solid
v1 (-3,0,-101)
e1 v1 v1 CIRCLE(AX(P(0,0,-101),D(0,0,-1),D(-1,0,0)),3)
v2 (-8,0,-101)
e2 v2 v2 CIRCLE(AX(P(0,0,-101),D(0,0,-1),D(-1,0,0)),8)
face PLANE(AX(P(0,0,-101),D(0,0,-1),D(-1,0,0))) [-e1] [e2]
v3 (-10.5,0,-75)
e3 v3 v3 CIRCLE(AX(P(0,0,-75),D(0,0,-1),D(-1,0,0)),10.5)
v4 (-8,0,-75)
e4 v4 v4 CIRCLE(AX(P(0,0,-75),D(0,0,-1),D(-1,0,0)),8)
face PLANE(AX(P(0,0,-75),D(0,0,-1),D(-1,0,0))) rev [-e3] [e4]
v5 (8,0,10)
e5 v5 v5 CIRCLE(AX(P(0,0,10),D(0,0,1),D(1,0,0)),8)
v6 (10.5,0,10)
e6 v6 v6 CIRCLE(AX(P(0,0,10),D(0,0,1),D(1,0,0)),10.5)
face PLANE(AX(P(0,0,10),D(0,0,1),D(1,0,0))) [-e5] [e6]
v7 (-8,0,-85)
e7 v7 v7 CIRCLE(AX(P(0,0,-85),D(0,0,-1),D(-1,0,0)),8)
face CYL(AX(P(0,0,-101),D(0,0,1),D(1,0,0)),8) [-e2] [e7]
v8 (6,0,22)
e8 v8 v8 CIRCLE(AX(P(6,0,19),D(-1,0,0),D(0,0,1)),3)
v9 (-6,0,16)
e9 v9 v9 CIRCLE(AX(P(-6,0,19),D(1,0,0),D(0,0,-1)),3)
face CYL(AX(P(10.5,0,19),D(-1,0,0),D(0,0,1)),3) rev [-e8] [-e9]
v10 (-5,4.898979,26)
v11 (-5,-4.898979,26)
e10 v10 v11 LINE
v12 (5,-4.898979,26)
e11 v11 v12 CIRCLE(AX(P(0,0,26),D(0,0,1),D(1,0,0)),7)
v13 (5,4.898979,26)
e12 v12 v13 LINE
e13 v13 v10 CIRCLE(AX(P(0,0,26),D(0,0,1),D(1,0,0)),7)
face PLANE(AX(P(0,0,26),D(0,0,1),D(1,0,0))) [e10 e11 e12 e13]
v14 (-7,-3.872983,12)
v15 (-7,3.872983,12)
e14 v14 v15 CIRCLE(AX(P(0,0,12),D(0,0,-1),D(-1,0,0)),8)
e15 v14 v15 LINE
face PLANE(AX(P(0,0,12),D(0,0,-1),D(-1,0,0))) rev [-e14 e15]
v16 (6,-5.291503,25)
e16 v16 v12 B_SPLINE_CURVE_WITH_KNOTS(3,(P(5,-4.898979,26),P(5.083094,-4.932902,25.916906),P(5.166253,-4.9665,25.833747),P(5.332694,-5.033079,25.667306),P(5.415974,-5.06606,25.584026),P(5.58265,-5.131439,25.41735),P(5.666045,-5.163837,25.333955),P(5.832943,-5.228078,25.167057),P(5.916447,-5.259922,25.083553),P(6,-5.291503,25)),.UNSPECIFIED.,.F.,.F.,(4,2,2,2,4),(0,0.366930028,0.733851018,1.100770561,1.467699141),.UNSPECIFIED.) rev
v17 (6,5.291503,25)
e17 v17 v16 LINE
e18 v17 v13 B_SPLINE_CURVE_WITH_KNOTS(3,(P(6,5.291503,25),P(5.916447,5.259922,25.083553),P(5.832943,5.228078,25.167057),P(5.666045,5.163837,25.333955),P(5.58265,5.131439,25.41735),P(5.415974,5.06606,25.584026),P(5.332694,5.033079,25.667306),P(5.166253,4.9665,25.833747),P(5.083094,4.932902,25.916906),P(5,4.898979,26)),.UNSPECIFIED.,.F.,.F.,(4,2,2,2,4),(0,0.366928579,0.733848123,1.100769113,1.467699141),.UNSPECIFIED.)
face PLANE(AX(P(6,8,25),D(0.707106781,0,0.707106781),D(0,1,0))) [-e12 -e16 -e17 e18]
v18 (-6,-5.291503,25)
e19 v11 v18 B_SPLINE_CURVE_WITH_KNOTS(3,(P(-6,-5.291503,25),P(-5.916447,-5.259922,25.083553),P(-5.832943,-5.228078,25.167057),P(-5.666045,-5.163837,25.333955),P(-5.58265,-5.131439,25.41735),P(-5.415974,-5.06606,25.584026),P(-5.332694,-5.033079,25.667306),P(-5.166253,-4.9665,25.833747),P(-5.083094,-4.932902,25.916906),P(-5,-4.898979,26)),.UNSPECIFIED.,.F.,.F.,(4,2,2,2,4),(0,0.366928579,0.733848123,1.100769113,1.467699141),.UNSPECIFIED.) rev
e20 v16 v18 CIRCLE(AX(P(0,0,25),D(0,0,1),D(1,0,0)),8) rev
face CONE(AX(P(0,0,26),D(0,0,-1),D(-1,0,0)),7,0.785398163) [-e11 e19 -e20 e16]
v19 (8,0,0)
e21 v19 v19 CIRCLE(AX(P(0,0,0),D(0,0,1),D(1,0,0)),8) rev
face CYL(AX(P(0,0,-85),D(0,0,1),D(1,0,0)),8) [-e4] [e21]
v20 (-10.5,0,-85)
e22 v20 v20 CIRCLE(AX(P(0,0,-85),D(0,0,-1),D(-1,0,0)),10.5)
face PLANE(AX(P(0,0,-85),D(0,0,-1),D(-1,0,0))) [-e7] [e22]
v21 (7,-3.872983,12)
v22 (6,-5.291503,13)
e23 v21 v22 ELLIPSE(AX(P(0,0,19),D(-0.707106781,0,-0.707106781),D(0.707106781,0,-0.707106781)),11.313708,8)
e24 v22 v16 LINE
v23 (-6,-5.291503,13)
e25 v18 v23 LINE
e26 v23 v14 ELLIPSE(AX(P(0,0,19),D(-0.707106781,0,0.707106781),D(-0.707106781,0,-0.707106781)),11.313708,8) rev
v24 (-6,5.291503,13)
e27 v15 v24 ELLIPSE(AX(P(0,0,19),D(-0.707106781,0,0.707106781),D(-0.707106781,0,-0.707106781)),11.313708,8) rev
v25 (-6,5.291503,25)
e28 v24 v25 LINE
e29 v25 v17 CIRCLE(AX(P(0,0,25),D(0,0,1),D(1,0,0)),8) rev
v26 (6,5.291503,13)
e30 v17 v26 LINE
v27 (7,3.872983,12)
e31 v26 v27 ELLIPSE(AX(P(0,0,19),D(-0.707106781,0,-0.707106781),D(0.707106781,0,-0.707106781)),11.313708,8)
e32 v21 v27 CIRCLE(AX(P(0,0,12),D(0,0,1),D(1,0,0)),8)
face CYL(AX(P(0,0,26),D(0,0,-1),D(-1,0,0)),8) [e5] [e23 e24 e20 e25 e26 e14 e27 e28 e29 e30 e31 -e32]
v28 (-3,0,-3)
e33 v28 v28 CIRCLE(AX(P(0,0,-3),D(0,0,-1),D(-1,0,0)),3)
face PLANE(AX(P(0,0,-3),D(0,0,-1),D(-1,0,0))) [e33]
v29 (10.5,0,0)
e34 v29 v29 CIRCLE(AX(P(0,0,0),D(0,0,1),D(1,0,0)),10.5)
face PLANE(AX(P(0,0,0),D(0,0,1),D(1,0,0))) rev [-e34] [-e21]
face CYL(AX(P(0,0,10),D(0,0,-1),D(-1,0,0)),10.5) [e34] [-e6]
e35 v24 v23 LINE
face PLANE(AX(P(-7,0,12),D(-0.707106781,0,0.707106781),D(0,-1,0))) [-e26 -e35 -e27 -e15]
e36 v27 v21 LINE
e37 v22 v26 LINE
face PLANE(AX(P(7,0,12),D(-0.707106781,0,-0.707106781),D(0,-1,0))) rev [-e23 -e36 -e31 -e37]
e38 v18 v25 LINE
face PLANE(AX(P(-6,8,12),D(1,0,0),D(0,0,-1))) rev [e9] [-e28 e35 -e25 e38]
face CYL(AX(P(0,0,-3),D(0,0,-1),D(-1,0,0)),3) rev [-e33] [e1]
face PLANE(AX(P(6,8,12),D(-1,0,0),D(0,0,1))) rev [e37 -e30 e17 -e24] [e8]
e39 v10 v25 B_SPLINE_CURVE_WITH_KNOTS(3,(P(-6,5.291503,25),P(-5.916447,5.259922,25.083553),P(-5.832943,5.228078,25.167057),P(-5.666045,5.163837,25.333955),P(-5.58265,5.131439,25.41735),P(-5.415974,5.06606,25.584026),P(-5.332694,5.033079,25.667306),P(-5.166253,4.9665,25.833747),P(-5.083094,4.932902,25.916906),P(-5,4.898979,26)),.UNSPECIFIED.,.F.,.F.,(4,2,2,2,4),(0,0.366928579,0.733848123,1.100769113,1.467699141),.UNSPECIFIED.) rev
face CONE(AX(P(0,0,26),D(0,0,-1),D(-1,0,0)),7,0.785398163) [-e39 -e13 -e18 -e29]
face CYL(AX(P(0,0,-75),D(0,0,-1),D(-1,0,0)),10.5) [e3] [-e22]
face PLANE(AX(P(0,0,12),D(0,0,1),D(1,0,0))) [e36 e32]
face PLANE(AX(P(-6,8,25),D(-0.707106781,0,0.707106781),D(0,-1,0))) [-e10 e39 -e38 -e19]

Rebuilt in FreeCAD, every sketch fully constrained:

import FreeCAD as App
import Part
import Sketcher

V = App.Vector


def edges_at(feature, points):
    """Names of the edges that pass closest to the given points."""
    edges = feature.Shape.Edges
    near = lambda p: min(range(len(edges)), key=lambda i: edges[i].distToShape(Part.Vertex(*p))[0])
    return sorted({f"Edge{near(p) + 1}" for p in points})

doc = App.newDocument("Part")
params = doc.addObject("Spreadsheet::Sheet", "Params")
for row, (alias, value) in enumerate([
    ("sketch1_diameter", "21 mm"),
    ("pad1_length", "10 mm"),
    ("sketch2_diameter", "16 mm"),
    ("pad2_length", "16 mm"),
    ("sketch3_width", "2 mm"),
    ("sketch3_height", "16 mm"),
    ("pocket1_length", "14 mm"),
    ("chamfer_size", "1 mm"),
    ("sketch4_diameter", "6 mm"),
    ("sketch5_diameter", "16 mm"),
    ("pad3_length", "85 mm"),
    ("sketch6_diameter", "21 mm"),
    ("pad4_length", "10 mm"),
    ("sketch7_diameter", "16 mm"),
    ("pad5_length", "16 mm"),
    ("sketch8_diameter", "6 mm"),
    ("pocket3_length", "98 mm"),
], start=1):
    params.set(f"A{row}", alias)
    params.set(f"B{row}", "=" + value)
    params.setAlias(f"B{row}", alias)

body = doc.addObject("PartDesign::Body", "Body")

# Sketch on XY plane
sketch1 = body.newObject("Sketcher::SketchObject", "Sketch")
sketch1.AttachmentSupport = (doc.getObject("XY_Plane"), [""])
sketch1.MapMode = "FlatFace"
sketch1.addGeometry(Part.Circle(V(0, 0, 0), V(0, 0, 1), 10.5), False)
sketch1.addConstraint(Sketcher.Constraint("Coincident", 0, 3, -1, 1))
sketch1.addConstraint(Sketcher.Constraint("Diameter", 0, 21.0))
sketch1.setExpression("Constraints[1]", "Params.sketch1_diameter")
pad1 = body.newObject("PartDesign::Pad", "Pad")
pad1.Profile = sketch1
pad1.setExpression("Length", "Params.pad1_length")

# Sketch on XY plane
sketch2 = body.newObject("Sketcher::SketchObject", "Sketch001")
sketch2.AttachmentSupport = (doc.getObject("XY_Plane"), [""])
sketch2.MapMode = "FlatFace"
sketch2.AttachmentOffset = App.Placement(V(0, 0, 10), App.Rotation())
sketch2.addGeometry(Part.Circle(V(0, 0, 0), V(0, 0, 1), 8), False)
sketch2.addConstraint(Sketcher.Constraint("Coincident", 0, 3, -1, 1))
sketch2.addConstraint(Sketcher.Constraint("Diameter", 0, 16.0))
sketch2.setExpression("Constraints[1]", "Params.sketch2_diameter")
pad2 = body.newObject("PartDesign::Pad", "Pad001")
pad2.Profile = sketch2
pad2.setExpression("Length", "Params.pad2_length")

# Sketch on XY plane
sketch3 = body.newObject("Sketcher::SketchObject", "Sketch002")
sketch3.AttachmentSupport = (doc.getObject("XY_Plane"), [""])
sketch3.MapMode = "FlatFace"
sketch3.AttachmentOffset = App.Placement(V(0, 0, 26), App.Rotation())
sketch3.addGeometry(Part.LineSegment(V(-8, 8, 0), V(-8, -8, 0)), False)
sketch3.addGeometry(Part.LineSegment(V(-8, -8, 0), V(-6, -8, 0)), False)
sketch3.addGeometry(Part.LineSegment(V(-6, -8, 0), V(-6, 8, 0)), False)
sketch3.addGeometry(Part.LineSegment(V(-6, 8, 0), V(-8, 8, 0)), False)
sketch3.addGeometry(Part.LineSegment(V(6, 8, 0), V(6, -8, 0)), False)
sketch3.addGeometry(Part.LineSegment(V(6, -8, 0), V(8, -8, 0)), False)
sketch3.addGeometry(Part.LineSegment(V(8, -8, 0), V(8, 8, 0)), False)
sketch3.addGeometry(Part.LineSegment(V(8, 8, 0), V(6, 8, 0)), False)
sketch3.addConstraint(Sketcher.Constraint("Coincident", 0, 2, 1, 1))
sketch3.addConstraint(Sketcher.Constraint("Coincident", 1, 2, 2, 1))
sketch3.addConstraint(Sketcher.Constraint("Coincident", 2, 2, 3, 1))
sketch3.addConstraint(Sketcher.Constraint("Coincident", 3, 2, 0, 1))
sketch3.addConstraint(Sketcher.Constraint("Coincident", 4, 2, 5, 1))
sketch3.addConstraint(Sketcher.Constraint("Coincident", 5, 2, 6, 1))
sketch3.addConstraint(Sketcher.Constraint("Coincident", 6, 2, 7, 1))
sketch3.addConstraint(Sketcher.Constraint("Coincident", 7, 2, 4, 1))
sketch3.addConstraint(Sketcher.Constraint("Vertical", 0))
sketch3.addConstraint(Sketcher.Constraint("Horizontal", 1))
sketch3.addConstraint(Sketcher.Constraint("Vertical", 2))
sketch3.addConstraint(Sketcher.Constraint("Horizontal", 3))
sketch3.addConstraint(Sketcher.Constraint("Vertical", 4))
sketch3.addConstraint(Sketcher.Constraint("Horizontal", 5))
sketch3.addConstraint(Sketcher.Constraint("Vertical", 6))
sketch3.addConstraint(Sketcher.Constraint("Horizontal", 7))
sketch3.addConstraint(Sketcher.Constraint("Symmetric", 2, 2, 4, 2, -1, 1))
sketch3.addConstraint(Sketcher.Constraint("Symmetric", 0, 2, 6, 2, -1, 1))
sketch3.addConstraint(Sketcher.Constraint("Horizontal", 1, 2, 4, 2))
sketch3.addConstraint(Sketcher.Constraint("DistanceX", 1, 1, 1, 2, 2.0))
sketch3.addConstraint(Sketcher.Constraint("DistanceY", 0, 2, 0, 1, 16.0))
sketch3.addConstraint(Sketcher.Constraint("DistanceX", 0, 2, -1, 1, 8.0))
sketch3.setExpression("Constraints[19]", "Params.sketch3_width")
sketch3.setExpression("Constraints[20]", "Params.sketch3_height")
pocket1 = body.newObject("PartDesign::Pocket", "Pocket")
pocket1.Profile = sketch3
pocket1.setExpression("Length", "Params.pocket1_length")
doc.recompute()

chamfer = body.newObject("PartDesign::Chamfer", "Chamfer")
chamfer.Base = (pocket1, edges_at(pocket1, [
    (0, -8, 26),
    (-6, 0, 26),
    (-6, 0, 12),
    (0, 8, 26),
    (6, 0, 26),
    (6, 0, 12),
]))
chamfer.setExpression("Size", "Params.chamfer_size")

# Sketch on YZ plane
sketch4 = body.newObject("Sketcher::SketchObject", "Sketch003")
sketch4.AttachmentSupport = (doc.getObject("YZ_Plane"), [""])
sketch4.MapMode = "FlatFace"
sketch4.AttachmentOffset = App.Placement(V(0, 0, -6), App.Rotation())
sketch4.addGeometry(Part.Circle(V(0, 19, 0), V(0, 0, 1), 3), False)
sketch4.addConstraint(Sketcher.Constraint("PointOnObject", 0, 3, -2))
sketch4.addConstraint(Sketcher.Constraint("Diameter", 0, 6.0))
sketch4.addConstraint(Sketcher.Constraint("DistanceY", -1, 1, 0, 3, 19.0))
sketch4.setExpression("Constraints[1]", "Params.sketch4_diameter")
pocket2 = body.newObject("PartDesign::Pocket", "Pocket001")
pocket2.Profile = sketch4
pocket2.Type = "ThroughAll"
pocket2.Midplane = True

# Sketch on XY plane
sketch5 = body.newObject("Sketcher::SketchObject", "Sketch004")
sketch5.AttachmentSupport = (doc.getObject("XY_Plane"), [""])
sketch5.MapMode = "FlatFace"
sketch5.AttachmentOffset = App.Placement(V(0, 0, -85), App.Rotation())
sketch5.addGeometry(Part.Circle(V(0, 0, 0), V(0, 0, 1), 8), False)
sketch5.addConstraint(Sketcher.Constraint("Coincident", 0, 3, -1, 1))
sketch5.addConstraint(Sketcher.Constraint("Diameter", 0, 16.0))
sketch5.setExpression("Constraints[1]", "Params.sketch5_diameter")
pad3 = body.newObject("PartDesign::Pad", "Pad002")
pad3.Profile = sketch5
pad3.setExpression("Length", "Params.pad3_length")

# Sketch on XY plane
sketch6 = body.newObject("Sketcher::SketchObject", "Sketch005")
sketch6.AttachmentSupport = (doc.getObject("XY_Plane"), [""])
sketch6.MapMode = "FlatFace"
sketch6.AttachmentOffset = App.Placement(V(0, 0, -85), App.Rotation())
sketch6.addGeometry(Part.Circle(V(0, 0, 0), V(0, 0, 1), 10.5), False)
sketch6.addConstraint(Sketcher.Constraint("Coincident", 0, 3, -1, 1))
sketch6.addConstraint(Sketcher.Constraint("Diameter", 0, 21.0))
sketch6.setExpression("Constraints[1]", "Params.sketch6_diameter")
pad4 = body.newObject("PartDesign::Pad", "Pad003")
pad4.Profile = sketch6
pad4.setExpression("Length", "Params.pad4_length")

# Sketch on XY plane
sketch7 = body.newObject("Sketcher::SketchObject", "Sketch006")
sketch7.AttachmentSupport = (doc.getObject("XY_Plane"), [""])
sketch7.MapMode = "FlatFace"
sketch7.AttachmentOffset = App.Placement(V(0, 0, -101), App.Rotation())
sketch7.addGeometry(Part.Circle(V(0, 0, 0), V(0, 0, 1), 8), False)
sketch7.addConstraint(Sketcher.Constraint("Coincident", 0, 3, -1, 1))
sketch7.addConstraint(Sketcher.Constraint("Diameter", 0, 16.0))
sketch7.setExpression("Constraints[1]", "Params.sketch7_diameter")
pad5 = body.newObject("PartDesign::Pad", "Pad004")
pad5.Profile = sketch7
pad5.setExpression("Length", "Params.pad5_length")

# Sketch on XY plane
sketch8 = body.newObject("Sketcher::SketchObject", "Sketch007")
sketch8.AttachmentSupport = (doc.getObject("XY_Plane"), [""])
sketch8.MapMode = "FlatFace"
sketch8.AttachmentOffset = App.Placement(V(0, 0, -101), App.Rotation())
sketch8.addGeometry(Part.Circle(V(0, 0, 0), V(0, 0, 1), 3), False)
sketch8.addConstraint(Sketcher.Constraint("Coincident", 0, 3, -1, 1))
sketch8.addConstraint(Sketcher.Constraint("Diameter", 0, 6.0))
sketch8.setExpression("Constraints[1]", "Params.sketch8_diameter")
pocket3 = body.newObject("PartDesign::Pocket", "Pocket002")
pocket3.Profile = sketch8
pocket3.setExpression("Length", "Params.pocket3_length")
pocket3.Reversed = True

doc.recompute()
